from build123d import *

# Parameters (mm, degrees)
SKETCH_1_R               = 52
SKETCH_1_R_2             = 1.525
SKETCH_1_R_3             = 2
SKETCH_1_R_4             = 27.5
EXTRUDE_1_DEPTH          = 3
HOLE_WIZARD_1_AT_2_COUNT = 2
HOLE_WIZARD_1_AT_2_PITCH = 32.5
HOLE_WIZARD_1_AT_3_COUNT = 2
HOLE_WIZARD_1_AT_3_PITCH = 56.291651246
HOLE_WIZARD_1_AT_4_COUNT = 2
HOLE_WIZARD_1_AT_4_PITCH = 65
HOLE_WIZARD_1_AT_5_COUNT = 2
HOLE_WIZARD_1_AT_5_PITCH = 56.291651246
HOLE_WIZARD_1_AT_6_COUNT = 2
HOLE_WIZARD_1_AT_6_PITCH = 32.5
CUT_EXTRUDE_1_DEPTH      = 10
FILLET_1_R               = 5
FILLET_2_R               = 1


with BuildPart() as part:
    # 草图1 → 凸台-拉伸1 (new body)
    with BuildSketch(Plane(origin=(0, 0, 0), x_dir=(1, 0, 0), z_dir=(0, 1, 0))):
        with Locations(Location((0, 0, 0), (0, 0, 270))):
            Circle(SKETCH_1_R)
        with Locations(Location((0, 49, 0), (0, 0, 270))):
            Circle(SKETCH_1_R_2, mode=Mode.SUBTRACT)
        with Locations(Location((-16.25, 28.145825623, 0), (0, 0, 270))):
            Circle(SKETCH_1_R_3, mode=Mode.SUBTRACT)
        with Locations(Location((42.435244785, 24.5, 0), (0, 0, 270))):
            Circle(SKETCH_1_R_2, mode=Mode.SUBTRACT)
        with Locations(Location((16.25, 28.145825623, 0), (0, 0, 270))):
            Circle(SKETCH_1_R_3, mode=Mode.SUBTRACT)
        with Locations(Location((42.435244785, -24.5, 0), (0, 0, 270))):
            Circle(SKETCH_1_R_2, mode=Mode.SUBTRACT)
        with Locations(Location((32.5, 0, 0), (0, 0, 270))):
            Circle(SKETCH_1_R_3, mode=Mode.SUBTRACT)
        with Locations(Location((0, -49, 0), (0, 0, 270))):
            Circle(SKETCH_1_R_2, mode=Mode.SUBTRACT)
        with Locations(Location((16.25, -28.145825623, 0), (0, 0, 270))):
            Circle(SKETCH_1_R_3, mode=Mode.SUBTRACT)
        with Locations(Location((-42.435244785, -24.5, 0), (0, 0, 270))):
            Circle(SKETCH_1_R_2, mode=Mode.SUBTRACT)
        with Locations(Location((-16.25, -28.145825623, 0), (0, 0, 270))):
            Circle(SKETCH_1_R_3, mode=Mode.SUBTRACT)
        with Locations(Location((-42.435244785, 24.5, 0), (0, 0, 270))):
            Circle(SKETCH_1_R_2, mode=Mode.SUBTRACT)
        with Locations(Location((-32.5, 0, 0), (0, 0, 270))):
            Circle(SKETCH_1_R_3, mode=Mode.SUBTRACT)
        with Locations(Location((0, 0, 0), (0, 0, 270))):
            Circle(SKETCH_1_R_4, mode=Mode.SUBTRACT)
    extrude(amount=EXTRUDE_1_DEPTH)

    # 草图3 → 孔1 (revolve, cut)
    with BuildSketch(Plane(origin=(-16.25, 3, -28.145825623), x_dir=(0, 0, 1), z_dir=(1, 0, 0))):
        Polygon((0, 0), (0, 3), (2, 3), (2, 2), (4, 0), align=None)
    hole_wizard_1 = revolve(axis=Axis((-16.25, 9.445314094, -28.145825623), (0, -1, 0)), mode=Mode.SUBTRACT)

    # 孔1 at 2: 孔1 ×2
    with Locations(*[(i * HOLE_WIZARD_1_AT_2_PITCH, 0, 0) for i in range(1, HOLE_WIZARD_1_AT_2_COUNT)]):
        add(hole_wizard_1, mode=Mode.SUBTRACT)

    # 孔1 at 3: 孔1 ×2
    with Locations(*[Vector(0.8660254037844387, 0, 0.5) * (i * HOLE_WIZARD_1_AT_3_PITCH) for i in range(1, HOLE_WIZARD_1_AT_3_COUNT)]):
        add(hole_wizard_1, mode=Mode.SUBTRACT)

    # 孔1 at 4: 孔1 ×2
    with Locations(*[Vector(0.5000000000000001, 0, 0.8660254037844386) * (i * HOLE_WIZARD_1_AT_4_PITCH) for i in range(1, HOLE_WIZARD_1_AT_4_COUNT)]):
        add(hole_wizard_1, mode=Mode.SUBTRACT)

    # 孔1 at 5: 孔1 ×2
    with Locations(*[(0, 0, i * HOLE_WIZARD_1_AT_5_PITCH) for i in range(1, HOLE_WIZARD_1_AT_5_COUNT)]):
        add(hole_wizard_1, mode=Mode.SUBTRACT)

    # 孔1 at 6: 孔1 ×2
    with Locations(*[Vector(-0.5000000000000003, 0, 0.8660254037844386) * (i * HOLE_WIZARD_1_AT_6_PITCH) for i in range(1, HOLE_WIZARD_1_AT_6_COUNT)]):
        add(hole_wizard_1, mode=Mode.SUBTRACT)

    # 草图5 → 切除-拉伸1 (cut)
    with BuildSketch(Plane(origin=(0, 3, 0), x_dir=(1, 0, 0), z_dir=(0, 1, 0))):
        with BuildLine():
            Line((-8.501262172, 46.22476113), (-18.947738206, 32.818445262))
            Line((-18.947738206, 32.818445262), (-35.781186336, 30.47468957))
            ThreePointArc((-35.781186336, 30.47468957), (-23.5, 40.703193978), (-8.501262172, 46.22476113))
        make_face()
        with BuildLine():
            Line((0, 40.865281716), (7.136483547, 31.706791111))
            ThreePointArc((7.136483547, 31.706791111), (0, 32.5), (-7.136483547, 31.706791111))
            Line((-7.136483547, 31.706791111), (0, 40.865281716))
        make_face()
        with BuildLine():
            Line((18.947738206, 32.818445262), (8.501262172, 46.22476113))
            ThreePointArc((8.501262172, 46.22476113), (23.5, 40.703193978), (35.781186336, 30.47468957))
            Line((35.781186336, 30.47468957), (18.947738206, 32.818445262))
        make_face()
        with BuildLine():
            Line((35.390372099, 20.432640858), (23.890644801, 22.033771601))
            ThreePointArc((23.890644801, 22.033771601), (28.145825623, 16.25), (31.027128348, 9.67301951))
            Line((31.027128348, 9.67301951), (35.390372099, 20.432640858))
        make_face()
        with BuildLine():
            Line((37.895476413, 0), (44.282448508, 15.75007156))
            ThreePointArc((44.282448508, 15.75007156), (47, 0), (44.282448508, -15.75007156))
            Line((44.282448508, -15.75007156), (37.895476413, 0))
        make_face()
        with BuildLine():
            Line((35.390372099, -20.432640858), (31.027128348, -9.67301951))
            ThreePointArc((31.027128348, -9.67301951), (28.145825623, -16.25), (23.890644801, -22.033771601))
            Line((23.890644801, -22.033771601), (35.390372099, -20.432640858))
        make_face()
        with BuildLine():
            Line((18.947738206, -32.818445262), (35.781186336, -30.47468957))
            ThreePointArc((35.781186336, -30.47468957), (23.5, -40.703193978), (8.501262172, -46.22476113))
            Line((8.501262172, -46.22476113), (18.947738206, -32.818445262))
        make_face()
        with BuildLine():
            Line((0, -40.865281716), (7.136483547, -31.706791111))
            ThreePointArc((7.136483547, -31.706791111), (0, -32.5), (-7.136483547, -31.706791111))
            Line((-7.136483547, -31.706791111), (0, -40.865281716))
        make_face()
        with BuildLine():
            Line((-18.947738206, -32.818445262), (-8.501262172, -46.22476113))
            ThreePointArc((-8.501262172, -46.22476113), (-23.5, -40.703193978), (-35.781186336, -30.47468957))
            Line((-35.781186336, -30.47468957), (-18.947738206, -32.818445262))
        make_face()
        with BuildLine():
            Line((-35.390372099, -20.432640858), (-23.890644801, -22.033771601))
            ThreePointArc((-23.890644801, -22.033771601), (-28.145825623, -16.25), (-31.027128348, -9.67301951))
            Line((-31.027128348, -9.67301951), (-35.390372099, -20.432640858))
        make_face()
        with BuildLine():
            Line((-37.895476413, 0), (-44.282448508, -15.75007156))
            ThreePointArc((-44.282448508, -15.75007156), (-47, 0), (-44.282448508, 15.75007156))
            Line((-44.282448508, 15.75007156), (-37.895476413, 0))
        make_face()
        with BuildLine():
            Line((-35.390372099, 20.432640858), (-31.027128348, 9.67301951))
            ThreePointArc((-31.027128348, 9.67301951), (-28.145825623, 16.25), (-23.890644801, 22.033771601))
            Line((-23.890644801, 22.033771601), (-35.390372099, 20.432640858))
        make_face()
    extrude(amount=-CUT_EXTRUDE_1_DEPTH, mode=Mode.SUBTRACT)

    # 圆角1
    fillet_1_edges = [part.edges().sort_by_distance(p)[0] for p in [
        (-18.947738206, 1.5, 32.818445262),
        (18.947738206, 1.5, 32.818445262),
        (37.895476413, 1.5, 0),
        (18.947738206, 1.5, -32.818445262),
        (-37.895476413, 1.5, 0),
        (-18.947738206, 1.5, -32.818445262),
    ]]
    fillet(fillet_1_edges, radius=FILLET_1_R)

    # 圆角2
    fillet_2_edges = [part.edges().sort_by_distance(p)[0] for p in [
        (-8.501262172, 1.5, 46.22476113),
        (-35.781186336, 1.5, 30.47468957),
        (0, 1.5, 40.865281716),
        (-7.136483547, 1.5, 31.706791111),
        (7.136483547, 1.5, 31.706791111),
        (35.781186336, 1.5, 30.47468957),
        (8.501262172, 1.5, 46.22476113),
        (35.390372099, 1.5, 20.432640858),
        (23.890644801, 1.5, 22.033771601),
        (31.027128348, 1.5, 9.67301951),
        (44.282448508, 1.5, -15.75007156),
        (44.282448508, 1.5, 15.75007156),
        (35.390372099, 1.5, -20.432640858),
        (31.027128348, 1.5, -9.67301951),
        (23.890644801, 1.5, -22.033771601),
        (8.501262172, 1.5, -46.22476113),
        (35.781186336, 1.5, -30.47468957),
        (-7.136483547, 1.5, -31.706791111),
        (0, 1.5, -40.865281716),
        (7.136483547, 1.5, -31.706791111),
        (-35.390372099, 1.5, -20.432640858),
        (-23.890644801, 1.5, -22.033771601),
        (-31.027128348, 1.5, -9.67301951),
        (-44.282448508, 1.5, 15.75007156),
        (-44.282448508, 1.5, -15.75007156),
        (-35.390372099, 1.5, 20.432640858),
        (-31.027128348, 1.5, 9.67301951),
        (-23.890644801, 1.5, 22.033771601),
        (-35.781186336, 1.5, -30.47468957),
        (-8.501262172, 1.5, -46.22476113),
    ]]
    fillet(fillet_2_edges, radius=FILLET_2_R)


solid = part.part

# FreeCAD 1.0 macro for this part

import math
import FreeCAD as App
import Part
import Sketcher
from FreeCAD import Vector
Q = App.Units.Quantity


def edges_at(feature, points):
    """Names of the edges that pass closest to the given points."""
    edges = feature.Shape.Edges
    near = lambda p: min(range(len(edges)), key=lambda i: edges[i].distToShape(Part.Vertex(*p))[0])
    return sorted({f"Edge{near(p) + 1}" for p in points})

doc = App.newDocument("Part")
body = doc.addObject("PartDesign::Body", "Body")

# Sketch on XZ plane
sketch1 = body.newObject("Sketcher::SketchObject", "Sketch")
sketch1.AttachmentSupport = (doc.getObject("XZ_Plane"), [""])
sketch1.MapMode = "FlatFace"
sketch1.addGeometry([
    Part.Circle(Vector(0, 0, 0), Vector(0, 0, 1), 52),  # 0
    Part.Circle(Vector(-42.435245, -24.5, 0), Vector(0, 0, 1), 1.525),  # 1
    Part.Circle(Vector(-16.25, -28.145826, 0), Vector(0, 0, 1), 2),  # 2
    Part.Circle(Vector(0, -49, 0), Vector(0, 0, 1), 1.525),  # 3
    Part.Circle(Vector(-42.435245, 24.5, 0), Vector(0, 0, 1), 1.525),  # 4
    Part.Circle(Vector(-32.5, 0, 0), Vector(0, 0, 1), 2),  # 5
    Part.Circle(Vector(-16.25, 28.145826, 0), Vector(0, 0, 1), 2),  # 6
    Part.Circle(Vector(16.25, -28.145826, 0), Vector(0, 0, 1), 2),  # 7
    Part.Circle(Vector(32.5, 0, 0), Vector(0, 0, 1), 2),  # 8
    Part.Circle(Vector(42.435245, -24.5, 0), Vector(0, 0, 1), 1.525),  # 9
    Part.Circle(Vector(0, 0, 0), Vector(0, 0, 1), 27.5),  # 10
    Part.Circle(Vector(0, 49, 0), Vector(0, 0, 1), 1.525),  # 11
    Part.Circle(Vector(16.25, 28.145826, 0), Vector(0, 0, 1), 2),  # 12
    Part.Circle(Vector(42.435245, 24.5, 0), Vector(0, 0, 1), 1.525),  # 13
], False)
sketch1.addConstraint([
    Sketcher.Constraint("Coincident", 0, 3, -1, 1),
    Sketcher.Constraint("Coincident", 10, 3, -1, 1),
    Sketcher.Constraint("Equal", 1, 3),
    Sketcher.Constraint("Equal", 3, 4),
    Sketcher.Constraint("Equal", 2, 5),
    Sketcher.Constraint("Equal", 5, 6),
    Sketcher.Constraint("Equal", 6, 7),
    Sketcher.Constraint("Equal", 7, 8),
    Sketcher.Constraint("Equal", 4, 9),
    Sketcher.Constraint("Equal", 9, 11),
    Sketcher.Constraint("Equal", 8, 12),
    Sketcher.Constraint("Equal", 11, 13),
    Sketcher.Constraint("Symmetric", 6, 3, 7, 3, -1, 1),
    Sketcher.Constraint("Symmetric", 5, 3, 8, 3, -1, 1),
    Sketcher.Constraint("Symmetric", 4, 3, 9, 3, -1, 1),
    Sketcher.Constraint("Symmetric", 3, 3, 11, 3, -1, 1),
    Sketcher.Constraint("Symmetric", 2, 3, 12, 3, -1, 1),
    Sketcher.Constraint("Symmetric", 1, 3, 13, 3, -1, 1),
    Sketcher.Constraint("Symmetric", 2, 3, 7, 3, -2),
    Sketcher.Constraint("Symmetric", 1, 3, 9, 3, -2),
    Sketcher.Constraint("PointOnObject", 3, 3, -2),
    Sketcher.Constraint("PointOnObject", 5, 3, -1),
    Sketcher.Constraint("Diameter", 0, Q("104 mm")),
    Sketcher.Constraint("Diameter", 2, Q("4 mm")),
    Sketcher.Constraint("Diameter", 10, Q("55 mm")),
    Sketcher.Constraint("Diameter", 1, Q("3.05 mm")),
    Sketcher.Constraint("DistanceY", 3, 3, -1, 1, Q("49 mm")),
    Sketcher.Constraint("DistanceY", 1, 3, 4, 3, Q("49 mm")),
    Sketcher.Constraint("DistanceX", 5, 3, -1, 1, Q("32.5 mm")),
    Sketcher.Constraint("DistanceX", 2, 3, 7, 3, Q("32.5 mm")),
    Sketcher.Constraint("DistanceY", 2, 3, 6, 3, Q("56.291651 mm")),
    Sketcher.Constraint("DistanceX", 1, 3, -1, 1, Q("42.435245 mm")),
])
pad1 = body.newObject("PartDesign::Pad", "Pad")
pad1.Profile = sketch1
pad1.Length = 3
pad1.Reversed = True

# Sketch on YZ plane
sketch2 = body.newObject("Sketcher::SketchObject", "Sketch001")
sketch2.AttachmentSupport = (doc.getObject("YZ_Plane"), [""])
sketch2.MapMode = "FlatFace"
sketch2.AttachmentOffset = App.Placement(Vector(0, 0, -16.25), App.Rotation())
sketch2.addGeometry([
    Part.LineSegment(Vector(0, -28.145826, 0), Vector(3, -28.145826, 0)),  # 0
    Part.LineSegment(Vector(3, -28.145826, 0), Vector(3, -24.145826, 0)),  # 1
    Part.LineSegment(Vector(3, -24.145826, 0), Vector(1, -26.145826, 0)),  # 2
    Part.LineSegment(Vector(1, -26.145826, 0), Vector(0, -26.145826, 0)),  # 3
    Part.LineSegment(Vector(0, -26.145826, 0), Vector(0, -28.145826, 0)),  # 4
], False)
sketch2.addGeometry(Part.LineSegment(Vector(3, -28.145826, 0), Vector(0, -28.145826, 0)), True)  # axis
sketch2.addConstraint([
    Sketcher.Constraint("Coincident", 0, 2, 1, 1),
    Sketcher.Constraint("Coincident", 1, 2, 2, 1),
    Sketcher.Constraint("Coincident", 2, 2, 3, 1),
    Sketcher.Constraint("Coincident", 3, 2, 4, 1),
    Sketcher.Constraint("Coincident", 4, 2, 0, 1),
    Sketcher.Constraint("Horizontal", 0),
    Sketcher.Constraint("Vertical", 1),
    Sketcher.Constraint("Horizontal", 3),
    Sketcher.Constraint("Vertical", 4),
    Sketcher.Constraint("Horizontal", 5),
    Sketcher.Constraint("Coincident", 5, 1, 0, 2),
    Sketcher.Constraint("PointOnObject", 3, 2, -2),
    Sketcher.Constraint("PointOnObject", 5, 2, -2),
    Sketcher.Constraint("DistanceX", 0, 1, 0, 2, Q("3 mm")),
    Sketcher.Constraint("DistanceX", 3, 2, 3, 1, Q("1 mm")),
    Sketcher.Constraint("DistanceY", 1, 1, 1, 2, Q("4 mm")),
    Sketcher.Constraint("DistanceY", 4, 2, 4, 1, Q("2 mm")),
    Sketcher.Constraint("DistanceY", 0, 2, -1, 1, Q("28.145826 mm")),
])
groove = body.newObject("PartDesign::Groove", "Groove")
groove.Profile = sketch2
groove.ReferenceAxis = (sketch2, ["Axis0"])
groove.Angle = 360
doc.recompute()

linearpattern = body.newObject("PartDesign::LinearPattern", "LinearPattern")
linearpattern.Originals = [groove]
linearpattern.Direction = (doc.getObject("X_Axis"), [""])
linearpattern.Mode = "offset"
linearpattern.Offset = 32.5
linearpattern.Occurrences = 2
body.Tip = linearpattern
doc.recompute()

datumline = body.newObject("PartDesign::Line", "DatumLine")
datumline.Placement = App.Placement(Vector(0, 0, 0), App.Rotation(Vector(0, 0, 1), Vector(0.866025404, 0, 0.5)))
linearpattern2 = body.newObject("PartDesign::LinearPattern", "LinearPattern001")
linearpattern2.Originals = [groove]
linearpattern2.Direction = (datumline, [""])
linearpattern2.Mode = "offset"
linearpattern2.Offset = 56.291651
linearpattern2.Occurrences = 2
body.Tip = linearpattern2
doc.recompute()

datumline2 = body.newObject("PartDesign::Line", "DatumLine001")
datumline2.Placement = App.Placement(Vector(0, 0, 0), App.Rotation(Vector(0, 0, 1), Vector(0.5, 0, 0.866025404)))
linearpattern3 = body.newObject("PartDesign::LinearPattern", "LinearPattern002")
linearpattern3.Originals = [groove]
linearpattern3.Direction = (datumline2, [""])
linearpattern3.Mode = "offset"
linearpattern3.Offset = 65
linearpattern3.Occurrences = 2
body.Tip = linearpattern3
doc.recompute()

linearpattern4 = body.newObject("PartDesign::LinearPattern", "LinearPattern003")
linearpattern4.Originals = [groove]
linearpattern4.Direction = (doc.getObject("Z_Axis"), [""])
linearpattern4.Mode = "offset"
linearpattern4.Offset = 56.291651
linearpattern4.Occurrences = 2
body.Tip = linearpattern4
doc.recompute()

datumline3 = body.newObject("PartDesign::Line", "DatumLine002")
datumline3.Placement = App.Placement(Vector(0, 0, 0), App.Rotation(Vector(0, 0, 1), Vector(-0.5, 0, 0.866025404)))
linearpattern5 = body.newObject("PartDesign::LinearPattern", "LinearPattern004")
linearpattern5.Originals = [groove]
linearpattern5.Direction = (datumline3, [""])
linearpattern5.Mode = "offset"
linearpattern5.Offset = 32.5
linearpattern5.Occurrences = 2
body.Tip = linearpattern5

# Sketch on XZ plane
sketch3 = body.newObject("Sketcher::SketchObject", "Sketch002")
sketch3.AttachmentSupport = (doc.getObject("XZ_Plane"), [""])
sketch3.MapMode = "FlatFace"
sketch3.AttachmentOffset = App.Placement(Vector(0, 0, -3), App.Rotation())
sketch3.addGeometry([
    Part.LineSegment(Vector(-18.947738, -32.818445, 0), Vector(-8.501262, -46.224761, 0)),  # 0
    Part.ArcOfCircle(Part.Circle(Vector(0, 0, 0), Vector(0, 0, 1), 47), math.radians(-139.5791), math.radians(-100.4209)),  # 1
    Part.LineSegment(Vector(-35.781186, -30.47469, 0), Vector(-18.947738, -32.818445, 0)),  # 2
    Part.LineSegment(Vector(7.136484, -31.706791, 0), Vector(0, -40.865282, 0)),  # 3
    Part.LineSegment(Vector(0, -40.865282, 0), Vector(-7.136484, -31.706791, 0)),  # 4
    Part.ArcOfCircle(Part.Circle(Vector(0, 0, 0), Vector(0, 0, 1), 32.5), math.radians(-102.684607), math.radians(-77.315393)),  # 5
    Part.LineSegment(Vector(8.501262, -46.224761, 0), Vector(18.947738, -32.818445, 0)),  # 6
    Part.LineSegment(Vector(18.947738, -32.818445, 0), Vector(35.781186, -30.47469, 0)),  # 7
    Part.ArcOfCircle(Part.Circle(Vector(0, 0, 0), Vector(0, 0, 1), 47), math.radians(-79.5791), math.radians(-40.4209)),  # 8
    Part.LineSegment(Vector(35.390372, -20.432641, 0), Vector(23.890645, -22.033772, 0)),  # 9
    Part.ArcOfCircle(Part.Circle(Vector(0, 0, 0), Vector(0, 0, 1), 32.5), math.radians(-42.684607), math.radians(-17.315393)),  # 10
    Part.LineSegment(Vector(31.027128, -9.67302, 0), Vector(35.390372, -20.432641, 0)),  # 11
    Part.LineSegment(Vector(44.282449, -15.750072, 0), Vector(37.895476, 0, 0)),  # 12
    Part.LineSegment(Vector(37.895476, 0, 0), Vector(44.282449, 15.750072, 0)),  # 13
    Part.ArcOfCircle(Part.Circle(Vector(0, 0, 0), Vector(0, 0, 1), 47), math.radians(-19.5791), math.radians(19.5791)),  # 14
    Part.LineSegment(Vector(35.390372, 20.432641, 0), Vector(31.027128, 9.67302, 0)),  # 15
    Part.ArcOfCircle(Part.Circle(Vector(0, 0, 0), Vector(0, 0, 1), 32.5), math.radians(17.315393), math.radians(42.684607)),  # 16
    Part.LineSegment(Vector(23.890645, 22.033772, 0), Vector(35.390372, 20.432641, 0)),  # 17
    Part.LineSegment(Vector(35.781186, 30.47469, 0), Vector(18.947738, 32.818445, 0)),  # 18
    Part.LineSegment(Vector(18.947738, 32.818445, 0), Vector(8.501262, 46.224761, 0)),  # 19
    Part.ArcOfCircle(Part.Circle(Vector(0, 0, 0), Vector(0, 0, 1), 47), math.radians(40.4209), math.radians(79.5791)),  # 20
    Part.LineSegment(Vector(0, 40.865282, 0), Vector(7.136484, 31.706791, 0)),  # 21
    Part.ArcOfCircle(Part.Circle(Vector(0, 0, 0), Vector(0, 0, 1), 32.5), math.radians(77.315393), math.radians(102.684607)),  # 22
    Part.LineSegment(Vector(-7.136484, 31.706791, 0), Vector(0, 40.865282, 0)),  # 23
    Part.LineSegment(Vector(-8.501262, 46.224761, 0), Vector(-18.947738, 32.818445, 0)),  # 24
    Part.LineSegment(Vector(-18.947738, 32.818445, 0), Vector(-35.781186, 30.47469, 0)),  # 25
    Part.ArcOfCircle(Part.Circle(Vector(0, 0, 0), Vector(0, 0, 1), 47), math.radians(100.4209), math.radians(139.5791)),  # 26
    Part.LineSegment(Vector(-35.390372, 20.432641, 0), Vector(-23.890645, 22.033772, 0)),  # 27
    Part.ArcOfCircle(Part.Circle(Vector(0, 0, 0), Vector(0, 0, 1), 32.5), math.radians(137.315393), math.radians(162.684607)),  # 28
    Part.LineSegment(Vector(-31.027128, 9.67302, 0), Vector(-35.390372, 20.432641, 0)),  # 29
    Part.LineSegment(Vector(-44.282449, 15.750072, 0), Vector(-37.895476, 0, 0)),  # 30
    Part.LineSegment(Vector(-37.895476, 0, 0), Vector(-44.282449, -15.750072, 0)),  # 31
    Part.ArcOfCircle(Part.Circle(Vector(0, 0, 0), Vector(0, 0, 1), 47), math.radians(160.4209), math.radians(199.5791)),  # 32
    Part.LineSegment(Vector(-35.390372, -20.432641, 0), Vector(-31.027128, -9.67302, 0)),  # 33
    Part.ArcOfCircle(Part.Circle(Vector(0, 0, 0), Vector(0, 0, 1), 32.5), math.radians(-162.684607), math.radians(-137.315393)),  # 34
    Part.LineSegment(Vector(-23.890645, -22.033772, 0), Vector(-35.390372, -20.432641, 0)),  # 35
], False)
sketch3.addConstraint([
    Sketcher.Constraint("Coincident", 0, 2, 1, 2),
    Sketcher.Constraint("Coincident", 1, 1, 2, 1),
    Sketcher.Constraint("Coincident", 2, 2, 0, 1),
    Sketcher.Constraint("Coincident", 3, 2, 4, 1),
    Sketcher.Constraint("Coincident", 4, 2, 5, 1),
    Sketcher.Constraint("Coincident", 5, 2, 3, 1),
    Sketcher.Constraint("Coincident", 6, 2, 7, 1),
    Sketcher.Constraint("Coincident", 7, 2, 8, 2),
    Sketcher.Constraint("Coincident", 8, 1, 6, 1),
    Sketcher.Constraint("Coincident", 9, 2, 10, 1),
    Sketcher.Constraint("Coincident", 10, 2, 11, 1),
    Sketcher.Constraint("Coincident", 11, 2, 9, 1),
    Sketcher.Constraint("Coincident", 12, 2, 13, 1),
    Sketcher.Constraint("Coincident", 13, 2, 14, 2),
    Sketcher.Constraint("Coincident", 14, 1, 12, 1),
    Sketcher.Constraint("Coincident", 15, 2, 16, 1),
    Sketcher.Constraint("Coincident", 16, 2, 17, 1),
    Sketcher.Constraint("Coincident", 17, 2, 15, 1),
    Sketcher.Constraint("Coincident", 18, 2, 19, 1),
    Sketcher.Constraint("Coincident", 19, 2, 20, 2),
    Sketcher.Constraint("Coincident", 20, 1, 18, 1),
    Sketcher.Constraint("Coincident", 21, 2, 22, 1),
    Sketcher.Constraint("Coincident", 22, 2, 23, 1),
    Sketcher.Constraint("Coincident", 23, 2, 21, 1),
    Sketcher.Constraint("Coincident", 24, 2, 25, 1),
    Sketcher.Constraint("Coincident", 25, 2, 26, 2),
    Sketcher.Constraint("Coincident", 26, 1, 24, 1),
    Sketcher.Constraint("Coincident", 27, 2, 28, 1),
    Sketcher.Constraint("Coincident", 28, 2, 29, 1),
    Sketcher.Constraint("Coincident", 29, 2, 27, 1),
    Sketcher.Constraint("Coincident", 30, 2, 31, 1),
    Sketcher.Constraint("Coincident", 31, 2, 32, 2),
    Sketcher.Constraint("Coincident", 32, 1, 30, 1),
    Sketcher.Constraint("Coincident", 33, 2, 34, 1),
    Sketcher.Constraint("Coincident", 34, 2, 35, 1),
    Sketcher.Constraint("Coincident", 35, 2, 33, 1),
    Sketcher.Constraint("Coincident", 1, 3, -1, 1),
    Sketcher.Constraint("Coincident", 5, 3, -1, 1),
    Sketcher.Constraint("Coincident", 8, 3, -1, 1),
    Sketcher.Constraint("Coincident", 10, 3, -1, 1),
    Sketcher.Constraint("Coincident", 14, 3, -1, 1),
    Sketcher.Constraint("Coincident", 16, 3, -1, 1),
    Sketcher.Constraint("Coincident", 20, 3, -1, 1),
    Sketcher.Constraint("Coincident", 22, 3, -1, 1),
    Sketcher.Constraint("Coincident", 26, 3, -1, 1),
    Sketcher.Constraint("Coincident", 28, 3, -1, 1),
    Sketcher.Constraint("Coincident", 32, 3, -1, 1),
    Sketcher.Constraint("Coincident", 34, 3, -1, 1),
    Sketcher.Constraint("Equal", 1, 8),
    Sketcher.Constraint("Equal", 5, 10),
    Sketcher.Constraint("Equal", 8, 14),
    Sketcher.Constraint("Equal", 10, 16),
    Sketcher.Constraint("Equal", 14, 20),
    Sketcher.Constraint("Equal", 16, 22),
    Sketcher.Constraint("Equal", 20, 26),
    Sketcher.Constraint("Equal", 22, 28),
    Sketcher.Constraint("Equal", 26, 32),
    Sketcher.Constraint("Equal", 28, 34),
    Sketcher.Constraint("Symmetric", 2, 2, 18, 2, -1, 1),
    Sketcher.Constraint("Symmetric", 3, 2, 23, 2, -1, 1),
    Sketcher.Constraint("Symmetric", 6, 2, 24, 2, -1, 1),
    Sketcher.Constraint("Symmetric", 11, 2, 29, 2, -1, 1),
    Sketcher.Constraint("Symmetric", 12, 2, 30, 2, -1, 1),
    Sketcher.Constraint("Symmetric", 17, 2, 35, 2, -1, 1),
    Sketcher.Constraint("Symmetric", 2, 2, 6, 2, -2),
    Sketcher.Constraint("Symmetric", 17, 2, 29, 2, -2),
    Sketcher.Constraint("PointOnObject", 3, 2, -2),
    Sketcher.Constraint("PointOnObject", 12, 2, -1),
    Sketcher.Constraint("Parallel", 0, 4),
    Sketcher.Constraint("Parallel", 3, 6),
    Sketcher.Constraint("Parallel", 7, 9),
    Sketcher.Constraint("Parallel", 11, 12),
    Sketcher.Constraint("Parallel", 13, 15),
    Sketcher.Constraint("Parallel", 2, 17),
    Sketcher.Constraint("Parallel", 17, 18),
    Sketcher.Constraint("Parallel", 4, 19),
    Sketcher.Constraint("Parallel", 19, 21),
    Sketcher.Constraint("Parallel", 6, 23),
    Sketcher.Constraint("Parallel", 23, 24),
    Sketcher.Constraint("Parallel", 9, 25),
    Sketcher.Constraint("Parallel", 25, 27),
    Sketcher.Constraint("Parallel", 12, 29),
    Sketcher.Constraint("Parallel", 29, 30),
    Sketcher.Constraint("Parallel", 15, 31),
    Sketcher.Constraint("Parallel", 31, 33),
    Sketcher.Constraint("Parallel", 18, 35),
    Sketcher.Constraint("Horizontal", 4, 2, 5, 2),
    Sketcher.Constraint("Horizontal", 1, 1, 7, 2),
    Sketcher.Constraint("Horizontal", 15, 2, 28, 2),
    Sketcher.Constraint("Equal", 0, 2),
    Sketcher.Constraint("Equal", 4, 9),
    Sketcher.Constraint("Equal", 9, 11),
    Sketcher.Constraint("Equal", 7, 12),
    Sketcher.Constraint("Radius", 1, Q("47 mm")),
    Sketcher.Constraint("Radius", 5, Q("32.5 mm")),
    Sketcher.Constraint("DistanceX", 0, 2, 6, 2, Q("27.449 mm")),
    Sketcher.Constraint("DistanceY", 4, 2, 1, 1, Q("1.232102 mm")),
    Sketcher.Constraint("DistanceY", 9, 2, 14, 1, Q("6.2837 mm")),
    Sketcher.Constraint("DistanceY", 0, 2, -1, 1, Q("46.224761 mm")),
    Sketcher.Constraint("DistanceY", 3, 2, -1, 1, Q("40.865282 mm")),
])
pocket1 = body.newObject("PartDesign::Pocket", "Pocket")
pocket1.Profile = sketch3
pocket1.Length = 10
pocket1.Reversed = True
doc.recompute()

fillet = body.newObject("PartDesign::Fillet", "Fillet")
fillet.Base = (pocket1, edges_at(pocket1, [
    (-18.948, 1.5, 32.818),
    (18.948, 1.5, 32.818),
    (37.895, 1.5, 0),
    (18.948, 1.5, -32.818),
    (-37.895, 1.5, 0),
    (-18.948, 1.5, -32.818),
]))
fillet.Radius = 5
doc.recompute()

fillet2 = body.newObject("PartDesign::Fillet", "Fillet001")
fillet2.Base = (fillet, edges_at(fillet, [
    (-8.501, 1.5, 46.225),
    (-35.781, 1.5, 30.475),
    (0, 1.5, 40.865),
    (-7.136, 1.5, 31.707),
    (7.136, 1.5, 31.707),
    (35.781, 1.5, 30.475),
    (8.501, 1.5, 46.225),
    (35.39, 1.5, 20.433),
    (23.891, 1.5, 22.034),
    (31.027, 1.5, 9.673),
    (44.282, 1.5, -15.75),
    (44.282, 1.5, 15.75),
    (35.39, 1.5, -20.433),
    (31.027, 1.5, -9.673),
    (23.891, 1.5, -22.034),
    (8.501, 1.5, -46.225),
    (35.781, 1.5, -30.475),
    (-7.136, 1.5, -31.707),
    (0, 1.5, -40.865),
    (7.136, 1.5, -31.707),
    (-35.39, 1.5, -20.433),
    (-23.891, 1.5, -22.034),
    (-31.027, 1.5, -9.673),
    (-44.282, 1.5, 15.75),
    (-44.282, 1.5, -15.75),
    (-35.39, 1.5, 20.433),
    (-31.027, 1.5, 9.673),
    (-23.891, 1.5, 22.034),
    (-35.781, 1.5, -30.475),
    (-8.501, 1.5, -46.225),
]))
fillet2.Radius = 1

doc.recompute()
